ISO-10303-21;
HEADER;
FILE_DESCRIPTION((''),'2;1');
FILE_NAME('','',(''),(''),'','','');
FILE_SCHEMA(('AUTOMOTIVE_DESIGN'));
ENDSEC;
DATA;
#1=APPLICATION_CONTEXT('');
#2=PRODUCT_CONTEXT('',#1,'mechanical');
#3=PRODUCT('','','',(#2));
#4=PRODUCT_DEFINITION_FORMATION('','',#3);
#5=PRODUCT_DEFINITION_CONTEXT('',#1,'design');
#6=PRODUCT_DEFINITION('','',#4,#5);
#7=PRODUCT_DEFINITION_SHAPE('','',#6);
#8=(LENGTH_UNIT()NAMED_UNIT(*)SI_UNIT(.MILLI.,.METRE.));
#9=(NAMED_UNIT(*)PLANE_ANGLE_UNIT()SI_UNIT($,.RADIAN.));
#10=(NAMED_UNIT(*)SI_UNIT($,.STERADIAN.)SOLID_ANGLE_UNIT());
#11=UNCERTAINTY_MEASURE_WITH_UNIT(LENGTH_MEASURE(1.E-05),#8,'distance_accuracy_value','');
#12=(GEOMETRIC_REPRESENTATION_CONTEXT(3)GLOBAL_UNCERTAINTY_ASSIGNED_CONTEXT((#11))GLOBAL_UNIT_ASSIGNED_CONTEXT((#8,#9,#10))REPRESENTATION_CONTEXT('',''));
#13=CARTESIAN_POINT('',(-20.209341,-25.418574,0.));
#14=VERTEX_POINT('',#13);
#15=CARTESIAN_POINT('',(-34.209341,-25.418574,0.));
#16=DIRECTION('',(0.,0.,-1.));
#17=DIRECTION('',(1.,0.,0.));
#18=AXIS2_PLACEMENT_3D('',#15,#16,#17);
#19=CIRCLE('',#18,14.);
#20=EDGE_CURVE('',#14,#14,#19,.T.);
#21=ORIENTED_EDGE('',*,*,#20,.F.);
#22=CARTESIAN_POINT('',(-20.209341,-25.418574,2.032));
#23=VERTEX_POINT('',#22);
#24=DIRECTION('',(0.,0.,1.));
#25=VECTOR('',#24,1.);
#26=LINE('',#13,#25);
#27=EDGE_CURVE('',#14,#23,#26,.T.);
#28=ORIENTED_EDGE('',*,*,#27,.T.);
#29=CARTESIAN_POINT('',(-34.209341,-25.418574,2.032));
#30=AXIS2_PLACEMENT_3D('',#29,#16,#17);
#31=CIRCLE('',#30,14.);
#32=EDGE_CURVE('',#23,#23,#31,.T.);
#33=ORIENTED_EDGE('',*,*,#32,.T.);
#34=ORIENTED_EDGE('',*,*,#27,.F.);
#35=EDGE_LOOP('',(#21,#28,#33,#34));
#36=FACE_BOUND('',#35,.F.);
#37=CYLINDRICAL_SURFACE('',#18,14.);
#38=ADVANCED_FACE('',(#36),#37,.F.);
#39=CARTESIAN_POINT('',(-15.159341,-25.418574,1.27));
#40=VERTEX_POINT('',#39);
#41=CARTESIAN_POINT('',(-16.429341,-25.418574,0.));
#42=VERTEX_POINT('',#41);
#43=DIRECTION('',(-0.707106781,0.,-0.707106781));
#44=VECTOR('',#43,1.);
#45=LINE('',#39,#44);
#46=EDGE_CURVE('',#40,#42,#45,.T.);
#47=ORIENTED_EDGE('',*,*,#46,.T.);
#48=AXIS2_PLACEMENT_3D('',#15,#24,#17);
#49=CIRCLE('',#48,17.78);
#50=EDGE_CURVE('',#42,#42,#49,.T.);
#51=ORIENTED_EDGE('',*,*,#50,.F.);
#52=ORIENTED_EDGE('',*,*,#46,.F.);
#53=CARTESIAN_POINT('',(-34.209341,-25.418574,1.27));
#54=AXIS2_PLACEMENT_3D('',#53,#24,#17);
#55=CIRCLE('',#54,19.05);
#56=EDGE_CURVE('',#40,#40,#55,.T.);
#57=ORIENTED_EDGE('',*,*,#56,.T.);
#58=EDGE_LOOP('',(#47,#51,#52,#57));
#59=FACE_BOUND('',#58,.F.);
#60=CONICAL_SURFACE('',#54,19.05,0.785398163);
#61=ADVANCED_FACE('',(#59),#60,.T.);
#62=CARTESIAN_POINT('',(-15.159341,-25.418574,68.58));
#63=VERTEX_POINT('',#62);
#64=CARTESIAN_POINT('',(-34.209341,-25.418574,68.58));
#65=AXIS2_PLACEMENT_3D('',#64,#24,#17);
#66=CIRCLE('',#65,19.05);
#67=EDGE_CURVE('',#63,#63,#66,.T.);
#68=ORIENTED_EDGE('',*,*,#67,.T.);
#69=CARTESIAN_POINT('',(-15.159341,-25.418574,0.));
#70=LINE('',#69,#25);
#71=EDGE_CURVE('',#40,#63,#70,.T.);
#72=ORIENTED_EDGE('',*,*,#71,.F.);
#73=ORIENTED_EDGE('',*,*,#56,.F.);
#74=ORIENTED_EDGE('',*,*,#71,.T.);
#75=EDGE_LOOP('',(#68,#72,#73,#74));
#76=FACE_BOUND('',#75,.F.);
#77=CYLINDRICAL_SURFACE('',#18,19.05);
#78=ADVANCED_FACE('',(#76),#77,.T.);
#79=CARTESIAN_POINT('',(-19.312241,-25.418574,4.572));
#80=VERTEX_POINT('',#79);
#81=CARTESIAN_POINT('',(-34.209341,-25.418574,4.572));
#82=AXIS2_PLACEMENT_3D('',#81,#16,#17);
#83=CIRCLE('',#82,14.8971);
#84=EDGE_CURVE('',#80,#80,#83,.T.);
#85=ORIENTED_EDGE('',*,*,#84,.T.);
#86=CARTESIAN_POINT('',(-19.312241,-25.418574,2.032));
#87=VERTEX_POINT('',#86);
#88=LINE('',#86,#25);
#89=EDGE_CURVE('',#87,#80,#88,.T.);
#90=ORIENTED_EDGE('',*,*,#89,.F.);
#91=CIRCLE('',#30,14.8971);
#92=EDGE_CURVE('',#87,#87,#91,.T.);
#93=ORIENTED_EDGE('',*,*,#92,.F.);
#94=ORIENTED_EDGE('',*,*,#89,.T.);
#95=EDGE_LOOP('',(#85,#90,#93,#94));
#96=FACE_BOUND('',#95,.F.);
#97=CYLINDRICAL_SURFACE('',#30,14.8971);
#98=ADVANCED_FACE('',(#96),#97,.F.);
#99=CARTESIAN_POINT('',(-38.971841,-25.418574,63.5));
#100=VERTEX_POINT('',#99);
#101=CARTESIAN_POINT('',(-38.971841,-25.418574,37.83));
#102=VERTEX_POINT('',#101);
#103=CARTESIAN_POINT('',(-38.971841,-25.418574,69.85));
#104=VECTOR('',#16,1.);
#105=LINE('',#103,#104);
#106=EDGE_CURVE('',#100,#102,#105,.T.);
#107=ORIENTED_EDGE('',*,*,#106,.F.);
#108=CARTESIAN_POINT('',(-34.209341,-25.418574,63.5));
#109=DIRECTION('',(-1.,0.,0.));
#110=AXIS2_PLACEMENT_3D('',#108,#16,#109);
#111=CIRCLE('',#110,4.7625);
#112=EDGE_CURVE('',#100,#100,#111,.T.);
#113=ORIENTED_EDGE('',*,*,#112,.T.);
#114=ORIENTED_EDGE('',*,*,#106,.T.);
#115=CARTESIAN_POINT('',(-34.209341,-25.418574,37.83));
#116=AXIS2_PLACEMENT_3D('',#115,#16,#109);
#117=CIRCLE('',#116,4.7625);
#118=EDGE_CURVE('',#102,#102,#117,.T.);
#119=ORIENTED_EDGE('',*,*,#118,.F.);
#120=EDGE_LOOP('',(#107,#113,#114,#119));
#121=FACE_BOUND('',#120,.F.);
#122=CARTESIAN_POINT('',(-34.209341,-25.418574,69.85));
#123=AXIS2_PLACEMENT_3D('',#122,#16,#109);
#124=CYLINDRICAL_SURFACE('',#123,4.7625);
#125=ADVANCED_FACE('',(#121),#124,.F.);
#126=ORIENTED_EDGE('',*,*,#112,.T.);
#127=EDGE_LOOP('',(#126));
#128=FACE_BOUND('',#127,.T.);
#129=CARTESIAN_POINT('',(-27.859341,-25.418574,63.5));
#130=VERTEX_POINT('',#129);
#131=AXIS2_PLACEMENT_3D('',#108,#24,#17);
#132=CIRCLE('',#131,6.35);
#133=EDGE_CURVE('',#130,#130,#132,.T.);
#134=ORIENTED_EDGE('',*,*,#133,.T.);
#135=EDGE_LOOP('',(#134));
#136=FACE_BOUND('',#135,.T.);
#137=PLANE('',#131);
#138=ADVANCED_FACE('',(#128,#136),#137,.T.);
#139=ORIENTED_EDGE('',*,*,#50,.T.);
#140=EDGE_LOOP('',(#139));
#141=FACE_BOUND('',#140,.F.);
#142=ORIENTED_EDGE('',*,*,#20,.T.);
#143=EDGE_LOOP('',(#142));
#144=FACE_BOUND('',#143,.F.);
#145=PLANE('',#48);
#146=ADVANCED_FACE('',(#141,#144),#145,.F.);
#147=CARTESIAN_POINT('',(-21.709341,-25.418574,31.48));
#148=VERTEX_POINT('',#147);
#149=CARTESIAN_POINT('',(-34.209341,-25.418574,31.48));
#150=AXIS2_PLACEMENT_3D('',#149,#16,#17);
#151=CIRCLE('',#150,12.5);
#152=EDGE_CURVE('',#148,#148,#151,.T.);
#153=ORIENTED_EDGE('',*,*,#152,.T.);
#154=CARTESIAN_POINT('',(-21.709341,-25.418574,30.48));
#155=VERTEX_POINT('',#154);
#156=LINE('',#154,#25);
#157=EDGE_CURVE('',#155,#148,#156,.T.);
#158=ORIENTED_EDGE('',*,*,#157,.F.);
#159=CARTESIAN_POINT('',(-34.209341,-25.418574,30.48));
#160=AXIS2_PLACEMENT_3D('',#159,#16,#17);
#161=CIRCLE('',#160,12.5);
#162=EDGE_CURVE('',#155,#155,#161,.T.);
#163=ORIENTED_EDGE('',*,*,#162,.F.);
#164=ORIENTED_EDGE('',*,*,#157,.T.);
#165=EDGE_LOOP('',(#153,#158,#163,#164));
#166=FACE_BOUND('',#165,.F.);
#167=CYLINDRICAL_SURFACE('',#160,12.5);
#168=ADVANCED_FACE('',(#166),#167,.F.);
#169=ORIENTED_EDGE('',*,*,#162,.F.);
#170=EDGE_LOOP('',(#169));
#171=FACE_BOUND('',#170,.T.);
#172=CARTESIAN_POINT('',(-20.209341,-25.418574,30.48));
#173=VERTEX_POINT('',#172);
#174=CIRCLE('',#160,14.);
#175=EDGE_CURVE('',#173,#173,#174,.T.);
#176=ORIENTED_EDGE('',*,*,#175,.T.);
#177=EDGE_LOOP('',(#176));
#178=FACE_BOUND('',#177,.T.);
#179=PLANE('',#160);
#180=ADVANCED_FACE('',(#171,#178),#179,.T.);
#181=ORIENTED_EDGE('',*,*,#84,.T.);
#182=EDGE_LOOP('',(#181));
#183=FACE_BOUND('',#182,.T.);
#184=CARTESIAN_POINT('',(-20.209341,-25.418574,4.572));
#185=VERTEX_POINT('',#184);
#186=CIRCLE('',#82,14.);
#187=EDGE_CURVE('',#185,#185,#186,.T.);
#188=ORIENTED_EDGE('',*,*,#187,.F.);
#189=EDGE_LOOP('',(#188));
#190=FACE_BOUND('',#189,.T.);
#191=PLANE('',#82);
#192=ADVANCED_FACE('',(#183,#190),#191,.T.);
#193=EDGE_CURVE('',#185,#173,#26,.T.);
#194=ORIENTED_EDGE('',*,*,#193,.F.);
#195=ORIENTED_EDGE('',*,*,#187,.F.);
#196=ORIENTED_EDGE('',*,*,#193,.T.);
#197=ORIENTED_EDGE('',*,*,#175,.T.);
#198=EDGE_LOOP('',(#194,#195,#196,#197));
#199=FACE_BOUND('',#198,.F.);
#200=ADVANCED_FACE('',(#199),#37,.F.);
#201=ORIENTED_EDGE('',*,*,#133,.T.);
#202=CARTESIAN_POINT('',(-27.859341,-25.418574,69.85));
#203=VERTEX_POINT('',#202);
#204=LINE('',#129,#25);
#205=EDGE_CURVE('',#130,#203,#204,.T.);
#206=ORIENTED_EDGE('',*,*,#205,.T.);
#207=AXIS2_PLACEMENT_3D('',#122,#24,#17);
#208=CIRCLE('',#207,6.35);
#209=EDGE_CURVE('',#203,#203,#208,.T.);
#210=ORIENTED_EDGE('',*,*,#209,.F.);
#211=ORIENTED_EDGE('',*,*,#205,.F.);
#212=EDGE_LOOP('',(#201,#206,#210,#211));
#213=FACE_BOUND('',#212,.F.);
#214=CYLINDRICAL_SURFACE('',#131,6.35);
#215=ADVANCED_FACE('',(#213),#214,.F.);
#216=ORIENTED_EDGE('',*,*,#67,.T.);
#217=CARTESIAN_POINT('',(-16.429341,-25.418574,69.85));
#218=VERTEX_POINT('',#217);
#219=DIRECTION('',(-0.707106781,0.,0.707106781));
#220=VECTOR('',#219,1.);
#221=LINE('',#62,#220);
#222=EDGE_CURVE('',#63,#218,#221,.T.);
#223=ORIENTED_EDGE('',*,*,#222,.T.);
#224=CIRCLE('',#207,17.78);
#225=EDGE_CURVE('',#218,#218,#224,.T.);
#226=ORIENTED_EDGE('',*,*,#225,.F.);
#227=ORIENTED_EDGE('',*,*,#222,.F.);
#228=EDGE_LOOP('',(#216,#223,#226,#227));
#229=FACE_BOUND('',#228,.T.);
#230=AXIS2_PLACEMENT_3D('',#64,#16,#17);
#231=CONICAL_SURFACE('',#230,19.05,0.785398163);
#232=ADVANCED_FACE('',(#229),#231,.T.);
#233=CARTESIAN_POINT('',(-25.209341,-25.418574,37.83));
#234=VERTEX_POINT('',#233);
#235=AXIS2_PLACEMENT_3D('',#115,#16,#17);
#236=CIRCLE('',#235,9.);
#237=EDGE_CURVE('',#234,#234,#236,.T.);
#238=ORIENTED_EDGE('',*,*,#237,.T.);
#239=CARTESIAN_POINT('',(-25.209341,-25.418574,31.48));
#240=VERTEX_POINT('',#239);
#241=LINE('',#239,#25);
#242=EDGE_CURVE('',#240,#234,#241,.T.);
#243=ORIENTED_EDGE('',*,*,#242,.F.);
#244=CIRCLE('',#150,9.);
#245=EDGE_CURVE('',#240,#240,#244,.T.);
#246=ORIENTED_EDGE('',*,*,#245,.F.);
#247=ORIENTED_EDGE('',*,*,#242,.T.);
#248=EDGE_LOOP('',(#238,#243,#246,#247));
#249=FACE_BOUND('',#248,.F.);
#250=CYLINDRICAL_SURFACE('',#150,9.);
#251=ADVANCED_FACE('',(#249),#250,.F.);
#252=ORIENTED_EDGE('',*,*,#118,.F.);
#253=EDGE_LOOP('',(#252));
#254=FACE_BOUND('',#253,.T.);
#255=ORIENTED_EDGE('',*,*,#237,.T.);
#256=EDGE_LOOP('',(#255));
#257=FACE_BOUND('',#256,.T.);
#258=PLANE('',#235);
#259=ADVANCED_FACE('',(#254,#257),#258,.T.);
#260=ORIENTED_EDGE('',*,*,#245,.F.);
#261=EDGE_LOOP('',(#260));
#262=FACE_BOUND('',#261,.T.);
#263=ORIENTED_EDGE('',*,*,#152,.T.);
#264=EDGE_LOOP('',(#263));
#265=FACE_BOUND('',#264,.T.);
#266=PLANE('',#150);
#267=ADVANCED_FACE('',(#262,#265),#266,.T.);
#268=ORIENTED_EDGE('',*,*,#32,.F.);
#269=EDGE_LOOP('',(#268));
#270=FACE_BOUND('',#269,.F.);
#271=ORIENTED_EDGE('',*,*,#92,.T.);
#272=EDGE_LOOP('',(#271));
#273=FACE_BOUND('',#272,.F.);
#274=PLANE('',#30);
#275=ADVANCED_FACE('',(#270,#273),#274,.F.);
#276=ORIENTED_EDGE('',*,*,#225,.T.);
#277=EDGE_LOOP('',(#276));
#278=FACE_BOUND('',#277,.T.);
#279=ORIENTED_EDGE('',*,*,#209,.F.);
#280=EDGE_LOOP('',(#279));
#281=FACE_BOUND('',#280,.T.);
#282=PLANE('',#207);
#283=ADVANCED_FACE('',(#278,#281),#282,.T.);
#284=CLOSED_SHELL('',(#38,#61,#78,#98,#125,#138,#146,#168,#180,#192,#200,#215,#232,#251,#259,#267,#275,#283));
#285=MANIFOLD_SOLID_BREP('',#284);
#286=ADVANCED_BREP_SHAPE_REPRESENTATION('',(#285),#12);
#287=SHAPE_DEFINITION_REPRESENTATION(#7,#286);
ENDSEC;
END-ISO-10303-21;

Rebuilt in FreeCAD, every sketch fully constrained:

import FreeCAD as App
import Part
import Sketcher
from FreeCAD import Vector
Q = App.Units.Quantity


def edges_at(feature, points):
    """Names of the edges that pass closest to the given points."""
    edges = feature.Shape.Edges
    near = lambda p: min(range(len(edges)), key=lambda i: edges[i].distToShape(Part.Vertex(*p))[0])
    return sorted({f"Edge{near(p) + 1}" for p in points})

doc = App.newDocument("Part")
body = doc.addObject("PartDesign::Body", "Body")

sketch1 = body.newObject("Sketcher::SketchObject", "Sketch")
sketch1.AttachmentSupport = (doc.getObject("XY_Plane"), [""])
sketch1.MapMode = "FlatFace"
sketch1.addGeometry(Part.Circle(Vector(-34, -25, 0), Vector(0, 0, 1), 19), False)
sketch1.addConstraint([
    Sketcher.Constraint("Diameter", 0, Q("1.5 in")),
    Sketcher.Constraint("DistanceX", 0, 3, -1, 1, Q("34.209341 mm")),
    Sketcher.Constraint("DistanceY", 0, 3, -1, 1, Q("25.418574 mm")),
])
pad1 = body.newObject("PartDesign::Pad", "Pad")
pad1.Profile = sketch1
pad1.Length = Q("2.75 in")

sketch2 = body.newObject("Sketcher::SketchObject", "Sketch001")
sketch2.AttachmentSupport = (doc.getObject("XY_Plane"), [""])
sketch2.MapMode = "FlatFace"
sketch2.addGeometry(Part.Circle(Vector(-34, -25, 0), Vector(0, 0, 1), 14), False)
sketch2.addConstraint([
    Sketcher.Constraint("Diameter", 0, Q("28 mm")),
    Sketcher.Constraint("DistanceX", 0, 3, -1, 1, Q("34.209341 mm")),
    Sketcher.Constraint("DistanceY", 0, 3, -1, 1, Q("25.418574 mm")),
])
pocket1 = body.newObject("PartDesign::Pocket", "Pocket")
pocket1.Profile = sketch2
pocket1.Length = Q("1.2 in")
pocket1.Reversed = True

sketch3 = body.newObject("Sketcher::SketchObject", "Sketch002")
sketch3.AttachmentSupport = (doc.getObject("XY_Plane"), [""])
sketch3.MapMode = "FlatFace"
sketch3.AttachmentOffset = App.Placement(Vector(0, 0, 1.2 * 25.4), App.Rotation())
sketch3.addGeometry(Part.Circle(Vector(-34, -25, 0), Vector(0, 0, 1), 12), False)
sketch3.addConstraint([
    Sketcher.Constraint("Diameter", 0, Q("25 mm")),
    Sketcher.Constraint("DistanceX", 0, 3, -1, 1, Q("34.209341 mm")),
    Sketcher.Constraint("DistanceY", 0, 3, -1, 1, Q("25.418574 mm")),
])
pocket2 = body.newObject("PartDesign::Pocket", "Pocket001")
pocket2.Profile = sketch3
pocket2.Length = 1
pocket2.Reversed = True

sketch4 = body.newObject("Sketcher::SketchObject", "Sketch003")
sketch4.AttachmentSupport = (doc.getObject("XY_Plane"), [""])
sketch4.MapMode = "FlatFace"
sketch4.AttachmentOffset = App.Placement(Vector(0, 0, 2.75 * 25.4), App.Rotation())
sketch4.addGeometry(Part.Circle(Vector(-34.2, -25.4, 0), Vector(0, 0, 1), 4.8), False)
sketch4.addConstraint([
    Sketcher.Constraint("Diameter", 0, Q("0.375 in")),
    Sketcher.Constraint("DistanceX", 0, 3, -1, 1, Q("34.209341 mm")),
    Sketcher.Constraint("DistanceY", 0, 3, -1, 1, Q("25.418574 mm")),
])
doc.recompute()
hole = body.newObject("PartDesign::Hole", "Hole")
hole.Profile = sketch4
hole.ThreadType = "None"
hole.Diameter = Q("0.375 in")
hole.DepthType = "ThroughAll"
hole.HoleCutType = "Counterbore"
hole.HoleCutDiameter = Q("0.5 in")
hole.HoleCutDepth = Q("0.25 in")

sketch5 = body.newObject("Sketcher::SketchObject", "Sketch004")
sketch5.AttachmentSupport = (doc.getObject("XY_Plane"), [""])
sketch5.MapMode = "FlatFace"
sketch5.AttachmentOffset = App.Placement(Vector(0, 0, 31.48), App.Rotation())
sketch5.addGeometry(Part.Circle(Vector(-34, -25, 0), Vector(0, 0, 1), 9), False)
sketch5.addConstraint([
    Sketcher.Constraint("Diameter", 0, Q("18 mm")),
    Sketcher.Constraint("DistanceX", 0, 3, -1, 1, Q("34.209341 mm")),
    Sketcher.Constraint("DistanceY", 0, 3, -1, 1, Q("25.418574 mm")),
])
pocket3 = body.newObject("PartDesign::Pocket", "Pocket002")
pocket3.Profile = sketch5
pocket3.Length = Q("0.25 in")
pocket3.Reversed = True

sketch6 = body.newObject("Sketcher::SketchObject", "Sketch005")
sketch6.AttachmentSupport = (doc.getObject("XY_Plane"), [""])
sketch6.MapMode = "FlatFace"
sketch6.AttachmentOffset = App.Placement(Vector(0, 0, 0.08 * 25.4), App.Rotation())
sketch6.addGeometry([
    Part.Circle(Vector(-34, -25, 0), Vector(0, 0, 1), 15),
    Part.Circle(Vector(-34, -25, 0), Vector(0, 0, 1), 14),
], False)
sketch6.addConstraint([
    Sketcher.Constraint("Coincident", 1, 3, 0, 3),
    Sketcher.Constraint("Diameter", 0, Q("1.173 in")),
    Sketcher.Constraint("Diameter", 1, Q("28 mm")),
    Sketcher.Constraint("DistanceX", 0, 3, -1, 1, Q("34.209341 mm")),
    Sketcher.Constraint("DistanceY", 0, 3, -1, 1, Q("25.418574 mm")),
])
pocket4 = body.newObject("PartDesign::Pocket", "Pocket003")
pocket4.Profile = sketch6
pocket4.Length = Q("0.1 in")
pocket4.Reversed = True
doc.recompute()

chamfer = body.newObject("PartDesign::Chamfer", "Chamfer")
chamfer.Base = (pocket4, edges_at(pocket4, [(-53.259, -25.419, 69.85), (-53.259, -25.419, 0)]))
chamfer.Size = Q("0.05 in")

doc.recompute()
